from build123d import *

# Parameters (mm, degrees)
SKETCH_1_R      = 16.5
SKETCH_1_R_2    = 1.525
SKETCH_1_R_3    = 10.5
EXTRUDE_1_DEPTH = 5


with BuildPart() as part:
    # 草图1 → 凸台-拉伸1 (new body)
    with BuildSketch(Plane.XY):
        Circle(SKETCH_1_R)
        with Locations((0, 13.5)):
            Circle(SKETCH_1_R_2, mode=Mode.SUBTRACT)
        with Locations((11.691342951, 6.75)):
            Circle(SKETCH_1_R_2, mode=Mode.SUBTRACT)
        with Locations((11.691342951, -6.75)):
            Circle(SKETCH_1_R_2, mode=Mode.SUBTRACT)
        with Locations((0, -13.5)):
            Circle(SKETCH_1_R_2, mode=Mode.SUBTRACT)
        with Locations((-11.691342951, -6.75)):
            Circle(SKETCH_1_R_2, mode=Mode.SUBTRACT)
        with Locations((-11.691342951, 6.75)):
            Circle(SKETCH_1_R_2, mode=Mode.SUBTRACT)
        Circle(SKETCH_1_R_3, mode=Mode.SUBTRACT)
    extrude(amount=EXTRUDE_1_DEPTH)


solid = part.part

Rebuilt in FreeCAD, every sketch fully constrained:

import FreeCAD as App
import Part
import Sketcher
from FreeCAD import Vector
Q = App.Units.Quantity

doc = App.newDocument("Part")
body = doc.addObject("PartDesign::Body", "Body")

# Sketch on XY plane
sketch1 = doc.addObject("Sketcher::SketchObject", "Sketch")
body.addObject(sketch1)
sketch1.AttachmentSupport = (doc.XY_Plane, [""])
sketch1.MapMode = "FlatFace"
sketch1.addGeometry(Part.Circle(Vector(0, 0, 0), Vector(0, 0, 1), 16.5), False)
sketch1.addGeometry(Part.Circle(Vector(0, -13.5, 0), Vector(0, 0, 1), 1.5), False)
sketch1.addGeometry(Part.Circle(Vector(-11.7, -6.8, 0), Vector(0, 0, 1), 1.5), False)
sketch1.addGeometry(Part.Circle(Vector(11.7, -6.8, 0), Vector(0, 0, 1), 1.5), False)
sketch1.addGeometry(Part.Circle(Vector(-11.7, 6.8, 0), Vector(0, 0, 1), 1.5), False)
sketch1.addGeometry(Part.Circle(Vector(0, 13.5, 0), Vector(0, 0, 1), 1.5), False)
sketch1.addGeometry(Part.Circle(Vector(0, 0, 0), Vector(0, 0, 1), 10.5), False)
sketch1.addGeometry(Part.Circle(Vector(11.7, 6.8, 0), Vector(0, 0, 1), 1.5), False)
sketch1.addConstraint(Sketcher.Constraint("Coincident", 0, 3, -1, 1))
sketch1.addConstraint(Sketcher.Constraint("Coincident", 6, 3, -1, 1))
sketch1.addConstraint(Sketcher.Constraint("Equal", 1, 2))
sketch1.addConstraint(Sketcher.Constraint("Equal", 2, 3))
sketch1.addConstraint(Sketcher.Constraint("Equal", 3, 4))
sketch1.addConstraint(Sketcher.Constraint("Equal", 4, 5))
sketch1.addConstraint(Sketcher.Constraint("Equal", 5, 7))
sketch1.addConstraint(Sketcher.Constraint("Symmetric", 3, 3, 4, 3, -1, 1))
sketch1.addConstraint(Sketcher.Constraint("Symmetric", 1, 3, 5, 3, -1, 1))
sketch1.addConstraint(Sketcher.Constraint("Symmetric", 2, 3, 7, 3, -1, 1))
sketch1.addConstraint(Sketcher.Constraint("Symmetric", 2, 3, 3, 3, -2))
sketch1.addConstraint(Sketcher.Constraint("PointOnObject", 1, 3, -2))
sketch1.addConstraint(Sketcher.Constraint("Diameter", 0, Q("33 mm")))
sketch1.addConstraint(Sketcher.Constraint("Diameter", 6, Q("21 mm")))
sketch1.addConstraint(Sketcher.Constraint("Diameter", 1, Q("3.05 mm")))
sketch1.addConstraint(Sketcher.Constraint("DistanceY", 1, 3, 5, 3, Q("27 mm")))
sketch1.addConstraint(Sketcher.Constraint("DistanceY", 2, 3, 4, 3, Q("13.5 mm")))
sketch1.addConstraint(Sketcher.Constraint("DistanceX", 2, 3, -1, 1, Q("11.691343 mm")))
pad1 = doc.addObject("PartDesign::Pad", "Pad")
body.addObject(pad1)
pad1.Profile = sketch1
pad1.Length = 5

doc.recompute()
